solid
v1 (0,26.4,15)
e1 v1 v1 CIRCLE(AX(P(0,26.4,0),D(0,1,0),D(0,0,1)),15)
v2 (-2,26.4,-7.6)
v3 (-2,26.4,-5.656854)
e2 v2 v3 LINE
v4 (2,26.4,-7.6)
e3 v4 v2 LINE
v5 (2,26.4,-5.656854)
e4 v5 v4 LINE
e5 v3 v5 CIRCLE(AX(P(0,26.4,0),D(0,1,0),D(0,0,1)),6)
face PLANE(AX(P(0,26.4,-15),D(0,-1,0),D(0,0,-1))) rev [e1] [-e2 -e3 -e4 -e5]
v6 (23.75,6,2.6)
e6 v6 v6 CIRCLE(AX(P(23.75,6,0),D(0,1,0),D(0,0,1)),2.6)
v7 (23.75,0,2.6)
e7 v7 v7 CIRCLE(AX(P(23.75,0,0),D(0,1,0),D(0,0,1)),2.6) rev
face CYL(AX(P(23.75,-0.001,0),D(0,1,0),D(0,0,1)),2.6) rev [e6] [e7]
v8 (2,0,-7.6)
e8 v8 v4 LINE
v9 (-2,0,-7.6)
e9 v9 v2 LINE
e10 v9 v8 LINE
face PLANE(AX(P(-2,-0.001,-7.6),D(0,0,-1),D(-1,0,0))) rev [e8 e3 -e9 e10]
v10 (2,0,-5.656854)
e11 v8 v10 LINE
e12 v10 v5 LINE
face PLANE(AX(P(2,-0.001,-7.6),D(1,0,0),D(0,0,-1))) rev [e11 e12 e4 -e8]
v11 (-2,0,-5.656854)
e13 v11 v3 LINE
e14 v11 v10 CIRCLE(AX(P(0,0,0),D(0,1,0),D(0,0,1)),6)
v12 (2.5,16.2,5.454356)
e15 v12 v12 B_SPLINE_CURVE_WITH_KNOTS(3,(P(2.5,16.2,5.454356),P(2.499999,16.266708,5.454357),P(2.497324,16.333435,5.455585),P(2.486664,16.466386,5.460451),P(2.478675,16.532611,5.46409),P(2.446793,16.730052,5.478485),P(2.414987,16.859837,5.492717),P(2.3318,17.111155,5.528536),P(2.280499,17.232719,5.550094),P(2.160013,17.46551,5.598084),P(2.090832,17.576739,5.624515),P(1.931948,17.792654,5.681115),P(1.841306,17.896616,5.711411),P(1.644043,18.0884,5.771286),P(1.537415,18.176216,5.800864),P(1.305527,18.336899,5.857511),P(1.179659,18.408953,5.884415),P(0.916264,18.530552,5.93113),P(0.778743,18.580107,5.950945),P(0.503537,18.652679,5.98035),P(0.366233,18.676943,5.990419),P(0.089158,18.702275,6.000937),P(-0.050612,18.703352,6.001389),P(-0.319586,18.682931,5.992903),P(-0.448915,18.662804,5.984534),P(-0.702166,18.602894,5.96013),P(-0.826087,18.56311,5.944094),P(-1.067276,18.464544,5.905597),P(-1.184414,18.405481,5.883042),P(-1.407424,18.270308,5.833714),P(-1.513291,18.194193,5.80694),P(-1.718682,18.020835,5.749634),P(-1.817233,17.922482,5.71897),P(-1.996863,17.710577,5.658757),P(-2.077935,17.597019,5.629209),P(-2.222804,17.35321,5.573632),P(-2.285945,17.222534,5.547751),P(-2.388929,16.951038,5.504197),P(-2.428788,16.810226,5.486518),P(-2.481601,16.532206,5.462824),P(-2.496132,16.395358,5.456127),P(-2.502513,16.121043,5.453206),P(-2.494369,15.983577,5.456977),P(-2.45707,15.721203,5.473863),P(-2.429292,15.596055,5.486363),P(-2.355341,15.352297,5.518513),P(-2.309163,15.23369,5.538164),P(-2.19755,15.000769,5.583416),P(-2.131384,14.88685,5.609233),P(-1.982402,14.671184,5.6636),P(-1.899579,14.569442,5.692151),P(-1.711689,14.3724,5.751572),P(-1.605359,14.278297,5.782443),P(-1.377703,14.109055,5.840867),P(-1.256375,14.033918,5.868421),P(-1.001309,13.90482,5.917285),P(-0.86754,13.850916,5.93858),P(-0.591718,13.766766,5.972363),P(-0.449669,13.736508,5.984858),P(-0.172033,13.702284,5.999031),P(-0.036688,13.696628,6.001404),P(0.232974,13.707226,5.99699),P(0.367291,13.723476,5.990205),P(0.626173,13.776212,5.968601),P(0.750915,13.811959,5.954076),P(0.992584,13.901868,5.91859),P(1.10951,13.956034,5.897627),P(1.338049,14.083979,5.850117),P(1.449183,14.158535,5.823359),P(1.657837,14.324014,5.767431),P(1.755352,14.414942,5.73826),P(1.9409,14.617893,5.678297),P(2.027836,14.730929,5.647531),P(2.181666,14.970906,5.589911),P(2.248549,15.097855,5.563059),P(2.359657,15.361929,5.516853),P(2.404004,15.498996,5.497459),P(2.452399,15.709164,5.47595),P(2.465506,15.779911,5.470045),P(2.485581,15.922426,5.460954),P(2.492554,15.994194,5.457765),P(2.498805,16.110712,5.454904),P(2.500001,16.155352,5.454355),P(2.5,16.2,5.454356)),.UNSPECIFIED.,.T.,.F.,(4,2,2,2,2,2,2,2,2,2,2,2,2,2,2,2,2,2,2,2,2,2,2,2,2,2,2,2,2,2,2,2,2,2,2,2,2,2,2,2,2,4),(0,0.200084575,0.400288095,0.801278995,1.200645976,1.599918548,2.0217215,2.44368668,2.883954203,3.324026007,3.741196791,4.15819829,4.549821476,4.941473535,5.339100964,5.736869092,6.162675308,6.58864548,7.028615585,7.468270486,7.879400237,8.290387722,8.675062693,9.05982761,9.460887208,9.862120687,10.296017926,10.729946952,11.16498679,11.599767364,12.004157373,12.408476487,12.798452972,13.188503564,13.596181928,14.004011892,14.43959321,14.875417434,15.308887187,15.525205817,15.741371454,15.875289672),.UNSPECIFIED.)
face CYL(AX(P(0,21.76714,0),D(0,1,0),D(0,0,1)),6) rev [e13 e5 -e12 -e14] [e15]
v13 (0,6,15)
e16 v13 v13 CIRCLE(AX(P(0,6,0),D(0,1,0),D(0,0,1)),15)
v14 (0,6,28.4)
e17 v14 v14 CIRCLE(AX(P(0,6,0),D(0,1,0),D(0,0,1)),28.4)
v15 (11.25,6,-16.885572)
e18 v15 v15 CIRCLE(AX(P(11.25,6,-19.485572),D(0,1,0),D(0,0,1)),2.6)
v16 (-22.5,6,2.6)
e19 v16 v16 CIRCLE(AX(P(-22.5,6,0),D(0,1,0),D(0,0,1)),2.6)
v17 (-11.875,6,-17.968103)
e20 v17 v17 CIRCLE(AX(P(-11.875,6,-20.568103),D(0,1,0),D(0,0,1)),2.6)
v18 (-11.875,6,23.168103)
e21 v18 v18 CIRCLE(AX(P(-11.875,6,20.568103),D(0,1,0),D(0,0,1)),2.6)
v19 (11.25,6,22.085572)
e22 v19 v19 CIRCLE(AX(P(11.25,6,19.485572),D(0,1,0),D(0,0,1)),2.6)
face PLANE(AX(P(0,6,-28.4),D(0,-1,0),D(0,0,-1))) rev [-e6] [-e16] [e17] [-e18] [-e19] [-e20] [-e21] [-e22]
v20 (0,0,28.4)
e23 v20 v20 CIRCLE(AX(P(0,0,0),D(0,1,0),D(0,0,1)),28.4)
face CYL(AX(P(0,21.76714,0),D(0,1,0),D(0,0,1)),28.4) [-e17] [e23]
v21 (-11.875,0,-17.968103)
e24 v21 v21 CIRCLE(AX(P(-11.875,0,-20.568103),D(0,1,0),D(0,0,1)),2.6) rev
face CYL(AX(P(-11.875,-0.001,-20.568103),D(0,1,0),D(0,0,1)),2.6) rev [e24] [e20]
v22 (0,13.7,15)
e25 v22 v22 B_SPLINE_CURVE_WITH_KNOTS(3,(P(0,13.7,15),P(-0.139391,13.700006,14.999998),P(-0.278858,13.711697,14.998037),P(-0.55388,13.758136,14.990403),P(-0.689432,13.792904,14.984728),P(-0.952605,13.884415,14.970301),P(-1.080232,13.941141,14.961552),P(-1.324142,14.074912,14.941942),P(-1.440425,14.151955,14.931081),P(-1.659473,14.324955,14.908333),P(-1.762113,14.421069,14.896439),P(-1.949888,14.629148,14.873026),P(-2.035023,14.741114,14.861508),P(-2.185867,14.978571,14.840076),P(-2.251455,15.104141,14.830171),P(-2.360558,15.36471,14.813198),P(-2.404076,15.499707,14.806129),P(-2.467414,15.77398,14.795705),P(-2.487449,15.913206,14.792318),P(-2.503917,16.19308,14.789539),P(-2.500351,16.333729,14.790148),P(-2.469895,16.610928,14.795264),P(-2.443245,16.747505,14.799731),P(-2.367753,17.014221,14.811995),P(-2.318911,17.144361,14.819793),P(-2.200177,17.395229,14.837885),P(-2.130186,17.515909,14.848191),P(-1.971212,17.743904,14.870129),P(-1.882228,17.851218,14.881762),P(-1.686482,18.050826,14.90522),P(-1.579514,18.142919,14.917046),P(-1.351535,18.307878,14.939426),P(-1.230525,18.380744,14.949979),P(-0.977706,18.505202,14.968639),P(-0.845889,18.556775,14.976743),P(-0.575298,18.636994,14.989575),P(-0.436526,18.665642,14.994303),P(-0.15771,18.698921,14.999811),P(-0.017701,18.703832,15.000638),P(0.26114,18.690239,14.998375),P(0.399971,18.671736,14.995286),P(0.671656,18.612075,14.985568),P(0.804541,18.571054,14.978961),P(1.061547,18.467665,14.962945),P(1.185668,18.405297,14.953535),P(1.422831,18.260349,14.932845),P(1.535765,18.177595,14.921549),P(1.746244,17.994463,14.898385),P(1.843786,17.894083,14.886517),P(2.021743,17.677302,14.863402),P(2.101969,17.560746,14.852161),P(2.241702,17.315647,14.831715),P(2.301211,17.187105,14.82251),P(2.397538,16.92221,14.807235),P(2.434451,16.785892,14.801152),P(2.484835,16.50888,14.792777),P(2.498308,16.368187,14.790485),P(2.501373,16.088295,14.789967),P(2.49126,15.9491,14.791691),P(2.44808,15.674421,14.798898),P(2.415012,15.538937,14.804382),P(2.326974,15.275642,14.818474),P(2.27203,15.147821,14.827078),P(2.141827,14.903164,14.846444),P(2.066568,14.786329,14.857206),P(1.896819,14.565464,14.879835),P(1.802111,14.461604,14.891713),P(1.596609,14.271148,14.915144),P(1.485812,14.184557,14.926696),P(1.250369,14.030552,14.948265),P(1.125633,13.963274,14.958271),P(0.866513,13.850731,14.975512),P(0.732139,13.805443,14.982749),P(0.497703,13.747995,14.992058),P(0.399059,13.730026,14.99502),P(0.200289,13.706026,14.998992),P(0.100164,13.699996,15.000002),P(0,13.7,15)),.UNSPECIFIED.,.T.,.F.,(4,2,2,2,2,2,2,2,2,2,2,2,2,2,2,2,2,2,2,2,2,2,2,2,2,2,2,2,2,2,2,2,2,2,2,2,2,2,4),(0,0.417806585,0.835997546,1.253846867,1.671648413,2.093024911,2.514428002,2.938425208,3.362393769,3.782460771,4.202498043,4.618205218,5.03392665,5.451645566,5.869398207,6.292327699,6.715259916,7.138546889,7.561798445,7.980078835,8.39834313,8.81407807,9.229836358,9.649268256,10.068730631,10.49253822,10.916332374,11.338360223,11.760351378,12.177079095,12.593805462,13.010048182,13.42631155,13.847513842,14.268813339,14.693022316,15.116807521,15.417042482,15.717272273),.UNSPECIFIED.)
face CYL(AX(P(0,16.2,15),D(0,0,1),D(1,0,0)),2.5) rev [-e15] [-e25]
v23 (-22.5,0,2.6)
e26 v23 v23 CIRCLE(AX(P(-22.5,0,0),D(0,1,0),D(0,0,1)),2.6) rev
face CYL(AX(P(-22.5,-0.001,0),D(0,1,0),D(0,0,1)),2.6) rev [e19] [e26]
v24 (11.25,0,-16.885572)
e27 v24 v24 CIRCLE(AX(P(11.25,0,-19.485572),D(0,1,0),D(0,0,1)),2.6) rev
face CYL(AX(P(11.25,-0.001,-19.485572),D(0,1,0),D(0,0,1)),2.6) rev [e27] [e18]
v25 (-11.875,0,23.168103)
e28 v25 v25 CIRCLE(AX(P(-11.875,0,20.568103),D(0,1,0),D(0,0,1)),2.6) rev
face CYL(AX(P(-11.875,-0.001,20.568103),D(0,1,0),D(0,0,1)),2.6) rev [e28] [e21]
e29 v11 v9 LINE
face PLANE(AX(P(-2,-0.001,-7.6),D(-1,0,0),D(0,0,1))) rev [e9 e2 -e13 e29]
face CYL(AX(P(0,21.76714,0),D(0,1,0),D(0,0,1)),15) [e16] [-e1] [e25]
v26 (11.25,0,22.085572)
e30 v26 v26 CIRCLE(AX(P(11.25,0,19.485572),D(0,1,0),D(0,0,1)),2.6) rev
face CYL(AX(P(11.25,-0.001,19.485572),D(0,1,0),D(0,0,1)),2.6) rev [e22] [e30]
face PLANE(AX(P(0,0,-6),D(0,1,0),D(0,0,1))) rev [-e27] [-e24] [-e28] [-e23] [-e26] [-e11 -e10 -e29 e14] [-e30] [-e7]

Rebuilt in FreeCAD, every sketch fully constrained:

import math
import FreeCAD as App
import Part
import Sketcher

V = App.Vector

doc = App.newDocument("Part")
body = doc.addObject("PartDesign::Body", "Body")

sketch1 = body.newObject("Sketcher::SketchObject", "Sketch")
sketch1.AttachmentSupport = (doc.getObject("YZ_Plane"), [""])
sketch1.MapMode = "FlatFace"
sketch1.addGeometry(Part.LineSegment(V(0, -6, 0), V(0, -28.4, 0)), False)
sketch1.addGeometry(Part.LineSegment(V(0, -28.4, 0), V(6, -28.4, 0)), False)
sketch1.addGeometry(Part.LineSegment(V(6, -28.4, 0), V(6, -15, 0)), False)
sketch1.addGeometry(Part.LineSegment(V(6, -15, 0), V(26.4, -15, 0)), False)
sketch1.addGeometry(Part.LineSegment(V(26.4, -15, 0), V(26.4, -6, 0)), False)
sketch1.addGeometry(Part.LineSegment(V(26.4, -6, 0), V(0, -6, 0)), False)
sketch1.addConstraint(Sketcher.Constraint("Coincident", 0, 2, 1, 1))
sketch1.addConstraint(Sketcher.Constraint("Coincident", 1, 2, 2, 1))
sketch1.addConstraint(Sketcher.Constraint("Coincident", 2, 2, 3, 1))
sketch1.addConstraint(Sketcher.Constraint("Coincident", 3, 2, 4, 1))
sketch1.addConstraint(Sketcher.Constraint("Coincident", 4, 2, 5, 1))
sketch1.addConstraint(Sketcher.Constraint("Coincident", 5, 2, 0, 1))
sketch1.addConstraint(Sketcher.Constraint("Vertical", 0))
sketch1.addConstraint(Sketcher.Constraint("Horizontal", 1))
sketch1.addConstraint(Sketcher.Constraint("Vertical", 2))
sketch1.addConstraint(Sketcher.Constraint("Horizontal", 3))
sketch1.addConstraint(Sketcher.Constraint("Vertical", 4))
sketch1.addConstraint(Sketcher.Constraint("Horizontal", 5))
sketch1.addConstraint(Sketcher.Constraint("PointOnObject", 0, 2, -2))
sketch1.addConstraint(Sketcher.Constraint("DistanceX", 1, 1, 1, 2, 6.0))
sketch1.addConstraint(Sketcher.Constraint("DistanceY", 4, 1, 4, 2, 9.0))
sketch1.addConstraint(Sketcher.Constraint("DistanceX", 3, 1, 3, 2, 20.4))
sketch1.addConstraint(Sketcher.Constraint("DistanceY", 0, 2, 0, 1, 22.4))
sketch1.addConstraint(Sketcher.Constraint("DistanceY", 2, 2, -1, 1, 15.0))
revolution = body.newObject("PartDesign::Revolution", "Revolution")
revolution.Profile = sketch1
revolution.ReferenceAxis = (sketch1, ["H_Axis"])
revolution.Angle = 360

sketch2 = body.newObject("Sketcher::SketchObject", "Sketch001")
sketch2.AttachmentSupport = (doc.getObject("XZ_Plane"), [""])
sketch2.MapMode = "FlatFace"
sketch2.AttachmentOffset = App.Placement(V(0, 0, -6), App.Rotation())
sketch2.addGeometry(Part.Circle(V(-22.5, 0, 0), V(0, 0, 1), 2.6), False)
sketch2.addConstraint(Sketcher.Constraint("PointOnObject", 0, 3, -1))
sketch2.addConstraint(Sketcher.Constraint("Diameter", 0, 5.2))
sketch2.addConstraint(Sketcher.Constraint("DistanceX", 0, 3, -1, 1, 22.5))
pocket1 = body.newObject("PartDesign::Pocket", "Pocket")
pocket1.Profile = sketch2
pocket1.Type = "UpToFirst"
pocket1.Reversed = True

sketch3 = body.newObject("Sketcher::SketchObject", "Sketch002")
sketch3.AttachmentSupport = (doc.getObject("XZ_Plane"), [""])
sketch3.MapMode = "FlatFace"
sketch3.AttachmentOffset = App.Placement(V(0, 0, -6), App.Rotation())
sketch3.addGeometry(Part.Circle(V(11.25, -19.485572, 0), V(0, 0, 1), 2.6), False)
sketch3.addConstraint(Sketcher.Constraint("Diameter", 0, 5.2))
sketch3.addConstraint(Sketcher.Constraint("DistanceX", -1, 1, 0, 3, 11.25))
sketch3.addConstraint(Sketcher.Constraint("DistanceY", 0, 3, -1, 1, 19.485572))
pocket2 = body.newObject("PartDesign::Pocket", "Pocket001")
pocket2.Profile = sketch3
pocket2.Type = "UpToFirst"
pocket2.Reversed = True

sketch4 = body.newObject("Sketcher::SketchObject", "Sketch003")
sketch4.AttachmentSupport = (doc.getObject("XZ_Plane"), [""])
sketch4.MapMode = "FlatFace"
sketch4.AttachmentOffset = App.Placement(V(0, 0, -6), App.Rotation())
sketch4.addGeometry(Part.Circle(V(11.25, 19.485572, 0), V(0, 0, 1), 2.6), False)
sketch4.addConstraint(Sketcher.Constraint("Diameter", 0, 5.2))
sketch4.addConstraint(Sketcher.Constraint("DistanceX", -1, 1, 0, 3, 11.25))
sketch4.addConstraint(Sketcher.Constraint("DistanceY", -1, 1, 0, 3, 19.485572))
pocket3 = body.newObject("PartDesign::Pocket", "Pocket002")
pocket3.Profile = sketch4
pocket3.Type = "UpToFirst"
pocket3.Reversed = True

sketch5 = body.newObject("Sketcher::SketchObject", "Sketch004")
sketch5.AttachmentSupport = (doc.getObject("XZ_Plane"), [""])
sketch5.MapMode = "FlatFace"
sketch5.AttachmentOffset = App.Placement(V(0, 0, -6), App.Rotation())
sketch5.addGeometry(Part.Circle(V(23.75, 0, 0), V(0, 0, 1), 2.6), False)
sketch5.addConstraint(Sketcher.Constraint("PointOnObject", 0, 3, -1))
sketch5.addConstraint(Sketcher.Constraint("Diameter", 0, 5.2))
sketch5.addConstraint(Sketcher.Constraint("DistanceX", -1, 1, 0, 3, 23.75))
pocket4 = body.newObject("PartDesign::Pocket", "Pocket003")
pocket4.Profile = sketch5
pocket4.Type = "UpToFirst"
pocket4.Reversed = True

sketch6 = body.newObject("Sketcher::SketchObject", "Sketch005")
sketch6.AttachmentSupport = (doc.getObject("XZ_Plane"), [""])
sketch6.MapMode = "FlatFace"
sketch6.AttachmentOffset = App.Placement(V(0, 0, -6), App.Rotation())
sketch6.addGeometry(Part.Circle(V(-11.875, 20.568103, 0), V(0, 0, 1), 2.6), False)
sketch6.addConstraint(Sketcher.Constraint("Diameter", 0, 5.2))
sketch6.addConstraint(Sketcher.Constraint("DistanceX", 0, 3, -1, 1, 11.875))
sketch6.addConstraint(Sketcher.Constraint("DistanceY", -1, 1, 0, 3, 20.568103))
pocket5 = body.newObject("PartDesign::Pocket", "Pocket004")
pocket5.Profile = sketch6
pocket5.Type = "UpToFirst"
pocket5.Reversed = True

sketch7 = body.newObject("Sketcher::SketchObject", "Sketch006")
sketch7.AttachmentSupport = (doc.getObject("XZ_Plane"), [""])
sketch7.MapMode = "FlatFace"
sketch7.AttachmentOffset = App.Placement(V(0, 0, -6), App.Rotation())
sketch7.addGeometry(Part.Circle(V(-11.875, -20.568103, 0), V(0, 0, 1), 2.6), False)
sketch7.addConstraint(Sketcher.Constraint("Diameter", 0, 5.2))
sketch7.addConstraint(Sketcher.Constraint("DistanceX", 0, 3, -1, 1, 11.875))
sketch7.addConstraint(Sketcher.Constraint("DistanceY", 0, 3, -1, 1, 20.568103))
pocket6 = body.newObject("PartDesign::Pocket", "Pocket005")
pocket6.Profile = sketch7
pocket6.Type = "UpToFirst"
pocket6.Reversed = True

sketch8 = body.newObject("Sketcher::SketchObject", "Sketch007")
sketch8.AttachmentSupport = (doc.getObject("XZ_Plane"), [""])
sketch8.MapMode = "FlatFace"
sketch8.AttachmentOffset = App.Placement(V(0, 0, -26.4), App.Rotation())
sketch8.addGeometry(Part.LineSegment(V(-2, -7.6, 0), V(-2, -5.656854, 0)), False)
sketch8.addGeometry(Part.ArcOfCircle(Part.Circle(V(0, 0, 0), V(0, 0, 1), 6), math.radians(-109.471221), math.radians(-70.528779)), False)
sketch8.addGeometry(Part.LineSegment(V(2, -5.656854, 0), V(2, -7.6, 0)), False)
sketch8.addGeometry(Part.LineSegment(V(2, -7.6, 0), V(-2, -7.6, 0)), False)
sketch8.addConstraint(Sketcher.Constraint("Coincident", 0, 2, 1, 1))
sketch8.addConstraint(Sketcher.Constraint("Coincident", 1, 2, 2, 1))
sketch8.addConstraint(Sketcher.Constraint("Coincident", 2, 2, 3, 1))
sketch8.addConstraint(Sketcher.Constraint("Coincident", 3, 2, 0, 1))
sketch8.addConstraint(Sketcher.Constraint("Vertical", 0))
sketch8.addConstraint(Sketcher.Constraint("Vertical", 2))
sketch8.addConstraint(Sketcher.Constraint("Horizontal", 3))
sketch8.addConstraint(Sketcher.Constraint("Coincident", 1, 3, -1, 1))
sketch8.addConstraint(Sketcher.Constraint("Horizontal", 0, 2, 1, 2))
sketch8.addConstraint(Sketcher.Constraint("Radius", 1, 6.0))
sketch8.addConstraint(Sketcher.Constraint("DistanceX", 3, 2, 3, 1, 4.0))
sketch8.addConstraint(Sketcher.Constraint("DistanceY", 2, 2, -1, 1, 7.6))
pocket7 = body.newObject("PartDesign::Pocket", "Pocket006")
pocket7.Profile = sketch8
pocket7.Type = "UpToFirst"
pocket7.Reversed = True

sketch9 = body.newObject("Sketcher::SketchObject", "Sketch008")
sketch9.AttachmentSupport = (doc.getObject("XY_Plane"), [""])
sketch9.MapMode = "FlatFace"
sketch9.AttachmentOffset = App.Placement(V(0, 0, 15), App.Rotation())
sketch9.addGeometry(Part.Circle(V(0, 16.2, 0), V(0, 0, 1), 2.5), False)
sketch9.addConstraint(Sketcher.Constraint("PointOnObject", 0, 3, -2))
sketch9.addConstraint(Sketcher.Constraint("Diameter", 0, 5.0))
sketch9.addConstraint(Sketcher.Constraint("DistanceY", -1, 1, 0, 3, 16.2))
pocket8 = body.newObject("PartDesign::Pocket", "Pocket007")
pocket8.Profile = sketch9
pocket8.Type = "UpToFirst"

doc.recompute()
